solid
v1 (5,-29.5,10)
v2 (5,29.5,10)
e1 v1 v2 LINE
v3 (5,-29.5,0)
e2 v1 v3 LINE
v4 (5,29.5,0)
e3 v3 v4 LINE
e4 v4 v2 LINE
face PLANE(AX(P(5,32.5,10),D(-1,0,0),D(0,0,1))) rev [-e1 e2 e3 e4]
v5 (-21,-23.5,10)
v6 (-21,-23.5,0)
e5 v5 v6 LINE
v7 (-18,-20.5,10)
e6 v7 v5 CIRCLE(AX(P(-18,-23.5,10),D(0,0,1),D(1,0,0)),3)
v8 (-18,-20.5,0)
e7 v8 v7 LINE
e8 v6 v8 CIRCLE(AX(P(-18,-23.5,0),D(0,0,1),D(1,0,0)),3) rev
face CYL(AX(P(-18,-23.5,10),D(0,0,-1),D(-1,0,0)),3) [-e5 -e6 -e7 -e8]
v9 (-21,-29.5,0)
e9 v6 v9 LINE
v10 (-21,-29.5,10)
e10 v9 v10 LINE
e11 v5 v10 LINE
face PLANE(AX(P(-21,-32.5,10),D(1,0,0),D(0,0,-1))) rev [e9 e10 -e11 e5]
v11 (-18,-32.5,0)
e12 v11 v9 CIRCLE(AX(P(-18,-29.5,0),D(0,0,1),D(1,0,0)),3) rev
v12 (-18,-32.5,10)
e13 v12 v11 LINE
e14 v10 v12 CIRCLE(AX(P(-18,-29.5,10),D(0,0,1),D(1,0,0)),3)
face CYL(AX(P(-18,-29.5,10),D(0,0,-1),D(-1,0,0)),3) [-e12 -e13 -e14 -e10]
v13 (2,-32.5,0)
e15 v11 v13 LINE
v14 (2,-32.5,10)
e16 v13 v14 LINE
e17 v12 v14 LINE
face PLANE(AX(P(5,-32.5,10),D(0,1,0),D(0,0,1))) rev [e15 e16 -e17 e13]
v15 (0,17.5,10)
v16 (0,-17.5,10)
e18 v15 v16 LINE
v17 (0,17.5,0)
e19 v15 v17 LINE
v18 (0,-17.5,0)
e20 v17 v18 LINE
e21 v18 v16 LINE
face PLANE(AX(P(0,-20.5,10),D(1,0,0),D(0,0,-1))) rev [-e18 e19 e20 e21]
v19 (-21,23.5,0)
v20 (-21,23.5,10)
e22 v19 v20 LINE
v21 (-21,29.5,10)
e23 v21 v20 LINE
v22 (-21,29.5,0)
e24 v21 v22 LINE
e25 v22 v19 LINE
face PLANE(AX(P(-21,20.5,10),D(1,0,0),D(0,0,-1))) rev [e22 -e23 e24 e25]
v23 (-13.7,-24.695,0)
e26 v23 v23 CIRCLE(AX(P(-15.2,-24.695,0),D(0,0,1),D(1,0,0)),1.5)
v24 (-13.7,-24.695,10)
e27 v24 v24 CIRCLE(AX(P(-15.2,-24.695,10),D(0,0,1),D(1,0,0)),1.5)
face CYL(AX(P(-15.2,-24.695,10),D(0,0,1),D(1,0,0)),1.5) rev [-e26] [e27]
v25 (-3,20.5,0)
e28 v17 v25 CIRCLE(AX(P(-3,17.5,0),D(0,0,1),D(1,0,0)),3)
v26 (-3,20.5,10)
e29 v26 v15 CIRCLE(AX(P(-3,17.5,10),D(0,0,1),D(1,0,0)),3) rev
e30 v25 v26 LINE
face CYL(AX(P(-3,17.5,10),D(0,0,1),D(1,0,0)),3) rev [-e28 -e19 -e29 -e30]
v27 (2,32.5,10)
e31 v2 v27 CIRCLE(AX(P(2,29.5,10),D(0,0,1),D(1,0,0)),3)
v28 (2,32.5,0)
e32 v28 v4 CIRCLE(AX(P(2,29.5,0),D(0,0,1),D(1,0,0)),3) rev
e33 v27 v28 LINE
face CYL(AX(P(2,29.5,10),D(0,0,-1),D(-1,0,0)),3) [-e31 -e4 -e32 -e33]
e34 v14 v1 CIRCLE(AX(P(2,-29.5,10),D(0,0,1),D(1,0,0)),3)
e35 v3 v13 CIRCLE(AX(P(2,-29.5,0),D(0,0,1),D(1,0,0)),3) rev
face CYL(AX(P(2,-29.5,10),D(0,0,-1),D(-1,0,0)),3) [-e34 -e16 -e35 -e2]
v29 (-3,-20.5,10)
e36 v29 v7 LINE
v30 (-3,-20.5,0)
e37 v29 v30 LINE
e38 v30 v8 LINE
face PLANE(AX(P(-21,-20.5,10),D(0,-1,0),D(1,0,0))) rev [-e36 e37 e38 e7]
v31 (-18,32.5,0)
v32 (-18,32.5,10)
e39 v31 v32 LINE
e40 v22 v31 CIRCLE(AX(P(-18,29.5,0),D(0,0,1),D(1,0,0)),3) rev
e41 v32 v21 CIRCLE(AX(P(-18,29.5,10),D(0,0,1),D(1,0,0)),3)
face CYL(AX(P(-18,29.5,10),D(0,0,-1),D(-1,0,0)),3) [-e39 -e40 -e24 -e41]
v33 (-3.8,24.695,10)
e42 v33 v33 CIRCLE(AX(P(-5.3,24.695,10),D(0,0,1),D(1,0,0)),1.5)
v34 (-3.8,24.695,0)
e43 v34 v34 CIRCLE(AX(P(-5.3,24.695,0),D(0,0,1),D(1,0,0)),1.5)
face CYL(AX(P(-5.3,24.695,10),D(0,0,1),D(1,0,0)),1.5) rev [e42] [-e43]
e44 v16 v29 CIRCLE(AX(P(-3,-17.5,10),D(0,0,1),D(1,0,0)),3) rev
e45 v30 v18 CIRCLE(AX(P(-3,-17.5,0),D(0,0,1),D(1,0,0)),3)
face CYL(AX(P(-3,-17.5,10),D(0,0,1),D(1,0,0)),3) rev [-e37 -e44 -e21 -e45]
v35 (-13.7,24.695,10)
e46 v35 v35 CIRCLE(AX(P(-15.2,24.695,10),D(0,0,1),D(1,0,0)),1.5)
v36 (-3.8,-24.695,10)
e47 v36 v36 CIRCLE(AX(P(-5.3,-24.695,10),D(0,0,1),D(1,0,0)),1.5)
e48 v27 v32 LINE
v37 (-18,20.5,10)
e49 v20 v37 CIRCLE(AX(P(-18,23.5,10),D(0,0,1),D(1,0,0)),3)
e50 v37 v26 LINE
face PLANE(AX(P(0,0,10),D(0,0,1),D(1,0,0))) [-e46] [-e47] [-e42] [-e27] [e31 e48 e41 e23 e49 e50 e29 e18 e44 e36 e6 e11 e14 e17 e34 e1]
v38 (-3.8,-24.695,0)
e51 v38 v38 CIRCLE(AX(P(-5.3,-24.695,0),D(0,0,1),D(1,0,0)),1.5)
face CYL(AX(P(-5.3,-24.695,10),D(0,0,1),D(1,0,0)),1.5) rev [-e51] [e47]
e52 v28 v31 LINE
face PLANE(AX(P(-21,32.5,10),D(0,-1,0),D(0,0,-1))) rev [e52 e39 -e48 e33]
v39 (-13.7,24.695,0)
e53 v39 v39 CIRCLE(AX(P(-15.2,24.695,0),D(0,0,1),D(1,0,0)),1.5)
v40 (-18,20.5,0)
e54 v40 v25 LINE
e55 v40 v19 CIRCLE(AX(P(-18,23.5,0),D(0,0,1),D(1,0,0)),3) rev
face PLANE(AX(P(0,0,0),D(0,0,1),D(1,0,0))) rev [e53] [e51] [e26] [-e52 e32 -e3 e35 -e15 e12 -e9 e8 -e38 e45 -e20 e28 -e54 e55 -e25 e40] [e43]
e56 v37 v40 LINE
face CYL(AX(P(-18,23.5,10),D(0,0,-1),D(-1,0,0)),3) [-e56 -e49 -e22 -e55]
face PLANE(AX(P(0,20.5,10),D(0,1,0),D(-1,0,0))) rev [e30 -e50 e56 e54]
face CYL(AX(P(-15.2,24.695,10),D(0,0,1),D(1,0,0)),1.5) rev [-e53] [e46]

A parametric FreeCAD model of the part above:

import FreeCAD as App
import Part
import Sketcher


def edges_at(feature, points):
    """Names of the edges that pass closest to the given points."""
    edges = feature.Shape.Edges
    near = lambda p: min(range(len(edges)), key=lambda i: edges[i].distToShape(Part.Vertex(*p))[0])
    return sorted({f"Edge{near(p) + 1}" for p in points})

doc = App.newDocument("Part")
params = doc.addObject("Spreadsheet::Sheet", "Params")
for row, (alias, value) in enumerate([
    ("sketch1_width", "21 mm"),
    ("sketch1_width2", "26 mm"),
    ("sketch1_height", "41 mm"),
    ("sketch1_height2", "12 mm"),
    ("pad1_length", "10 mm"),
    ("fillet_radius", "3 mm"),
    ("sketch2_diameter", "3 mm"),
    ("hole_diameter", "3 mm"),
], start=1):
    params.set(f"A{row}", alias)
    params.set(f"B{row}", "=" + value)
    params.setAlias(f"B{row}", alias)

body = doc.addObject("PartDesign::Body", "Body")

# Sketch on XY plane
sketch1 = body.newObject("Sketcher::SketchObject", "Sketch")
sketch1.AttachmentSupport = (doc.getObject("XY_Plane"), [""])
sketch1.MapMode = "FlatFace"
sketch1.addGeometry(Part.LineSegment(App.Vector(0, 20.5, 0), App.Vector(0, -20.5, 0)), False)
sketch1.addGeometry(Part.LineSegment(App.Vector(0, -20.5, 0), App.Vector(-21, -20.5, 0)), False)
sketch1.addGeometry(Part.LineSegment(App.Vector(-21, -20.5, 0), App.Vector(-21, -32.5, 0)), False)
sketch1.addGeometry(Part.LineSegment(App.Vector(-21, -32.5, 0), App.Vector(5, -32.5, 0)), False)
sketch1.addGeometry(Part.LineSegment(App.Vector(5, -32.5, 0), App.Vector(5, 32.5, 0)), False)
sketch1.addGeometry(Part.LineSegment(App.Vector(5, 32.5, 0), App.Vector(-21, 32.5, 0)), False)
sketch1.addGeometry(Part.LineSegment(App.Vector(-21, 32.5, 0), App.Vector(-21, 20.5, 0)), False)
sketch1.addGeometry(Part.LineSegment(App.Vector(-21, 20.5, 0), App.Vector(0, 20.5, 0)), False)
sketch1.addConstraint(Sketcher.Constraint("Coincident", 0, 2, 1, 1))
sketch1.addConstraint(Sketcher.Constraint("Coincident", 1, 2, 2, 1))
sketch1.addConstraint(Sketcher.Constraint("Coincident", 2, 2, 3, 1))
sketch1.addConstraint(Sketcher.Constraint("Coincident", 3, 2, 4, 1))
sketch1.addConstraint(Sketcher.Constraint("Coincident", 4, 2, 5, 1))
sketch1.addConstraint(Sketcher.Constraint("Coincident", 5, 2, 6, 1))
sketch1.addConstraint(Sketcher.Constraint("Coincident", 6, 2, 7, 1))
sketch1.addConstraint(Sketcher.Constraint("Coincident", 7, 2, 0, 1))
sketch1.addConstraint(Sketcher.Constraint("Vertical", 0))
sketch1.addConstraint(Sketcher.Constraint("Horizontal", 1))
sketch1.addConstraint(Sketcher.Constraint("Vertical", 2))
sketch1.addConstraint(Sketcher.Constraint("Horizontal", 3))
sketch1.addConstraint(Sketcher.Constraint("Vertical", 4))
sketch1.addConstraint(Sketcher.Constraint("Horizontal", 5))
sketch1.addConstraint(Sketcher.Constraint("Vertical", 6))
sketch1.addConstraint(Sketcher.Constraint("Horizontal", 7))
sketch1.addConstraint(Sketcher.Constraint("Symmetric", 0, 2, 7, 2, -1, 1))
sketch1.addConstraint(Sketcher.Constraint("Symmetric", 2, 2, 5, 2, -1))
sketch1.addConstraint(Sketcher.Constraint("DistanceX", 1, 2, 1, 1, 21.0))
sketch1.addConstraint(Sketcher.Constraint("DistanceX", 3, 1, 3, 2, 26.0))
sketch1.addConstraint(Sketcher.Constraint("DistanceY", 0, 2, 0, 1, 41.0))
sketch1.addConstraint(Sketcher.Constraint("DistanceY", 2, 2, 2, 1, 12.0))
sketch1.setExpression("Constraints[18]", "Params.sketch1_width")
sketch1.setExpression("Constraints[19]", "Params.sketch1_width2")
sketch1.setExpression("Constraints[20]", "Params.sketch1_height")
sketch1.setExpression("Constraints[21]", "Params.sketch1_height2")
pad1 = body.newObject("PartDesign::Pad", "Pad")
pad1.Profile = sketch1
pad1.setExpression("Length", "Params.pad1_length")
doc.recompute()

fillet = body.newObject("PartDesign::Fillet", "Fillet")
fillet.Base = (pad1, edges_at(pad1, [
    (0, -20.5, 5),
    (0, 20.5, 5),
    (-21, 20.5, 5),
    (-21, 32.5, 5),
    (5, 32.5, 5),
    (5, -32.5, 5),
    (-21, -32.5, 5),
    (-21, -20.5, 5),
]))
fillet.setExpression("Radius", "Params.fillet_radius")

# Sketch on XY plane
sketch2 = body.newObject("Sketcher::SketchObject", "Sketch001")
sketch2.AttachmentSupport = (doc.getObject("XY_Plane"), [""])
sketch2.MapMode = "FlatFace"
sketch2.AttachmentOffset = App.Placement(App.Vector(0, 0, 10), App.Rotation())
sketch2.addGeometry(Part.Circle(App.Vector(-5.3, 24.695, 0), App.Vector(0, 0, 1), 1.5), False)
sketch2.addGeometry(Part.Circle(App.Vector(-15.2, 24.695, 0), App.Vector(0, 0, 1), 1.5), False)
sketch2.addConstraint(Sketcher.Constraint("Equal", 0, 1))
sketch2.addConstraint(Sketcher.Constraint("Horizontal", 0, 3, 1, 3))
sketch2.addConstraint(Sketcher.Constraint("Diameter", 0, 3.0))
sketch2.addConstraint(Sketcher.Constraint("DistanceX", 0, 3, -1, 1, 5.3))
sketch2.addConstraint(Sketcher.Constraint("DistanceX", 1, 3, -1, 1, 15.2))
sketch2.addConstraint(Sketcher.Constraint("DistanceY", -1, 1, 0, 3, 24.695))
sketch2.setExpression("Constraints[2]", "Params.sketch2_diameter")
doc.recompute()
hole = body.newObject("PartDesign::Hole", "Hole")
hole.Profile = sketch2
hole.ThreadType = "None"
hole.setExpression("Diameter", "Params.hole_diameter")
hole.DepthType = "ThroughAll"
doc.recompute()

mirrored = body.newObject("PartDesign::Mirrored", "Mirrored")
mirrored.Originals = [hole]
mirrored.MirrorPlane = (doc.getObject("XZ_Plane"), [""])
body.Tip = mirrored

doc.recompute()
